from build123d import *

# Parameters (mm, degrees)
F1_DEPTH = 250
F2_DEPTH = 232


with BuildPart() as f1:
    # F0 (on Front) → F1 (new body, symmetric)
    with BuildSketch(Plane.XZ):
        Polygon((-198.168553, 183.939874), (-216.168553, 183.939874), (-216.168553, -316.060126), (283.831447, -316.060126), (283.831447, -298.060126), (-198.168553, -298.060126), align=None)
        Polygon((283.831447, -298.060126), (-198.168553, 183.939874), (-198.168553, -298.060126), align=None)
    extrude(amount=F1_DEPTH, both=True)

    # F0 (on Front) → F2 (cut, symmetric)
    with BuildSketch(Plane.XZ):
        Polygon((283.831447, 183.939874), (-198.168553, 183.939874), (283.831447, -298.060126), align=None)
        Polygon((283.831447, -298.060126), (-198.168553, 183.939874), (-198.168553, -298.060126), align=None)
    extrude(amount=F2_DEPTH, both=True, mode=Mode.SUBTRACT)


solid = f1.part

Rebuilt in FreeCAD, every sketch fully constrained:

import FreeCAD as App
import Part
import Sketcher


def add_polygon(sketch, points):
    """Adds a closed chain of lines whose ends are joined by coincident constraints."""
    first, n = sketch.GeometryCount, len(points)
    for a, b in zip(points, points[1:] + points[:1]):
        sketch.addGeometry(Part.LineSegment(App.Vector(*a, 0), App.Vector(*b, 0)), False)
    for i in range(n):
        sketch.addConstraint(Sketcher.Constraint("Coincident", first + i, 2, first + (i + 1) % n, 1))

doc = App.newDocument("Part")
body = doc.addObject("PartDesign::Body", "Body")

sketch1 = doc.addObject("Sketcher::SketchObject", "Sketch")
body.addObject(sketch1)
sketch1.AttachmentSupport = (doc.XZ_Plane, [""])
sketch1.MapMode = "FlatFace"
add_polygon(sketch1, [(-198, 184), (-216, 184), (-216, -316), (284, -316), (284, -298)])
sketch1.addConstraint([
    Sketcher.Constraint("Horizontal", 0),
    Sketcher.Constraint("Vertical", 1),
    Sketcher.Constraint("Horizontal", 2),
    Sketcher.Constraint("Vertical", 3),
    Sketcher.Constraint("Equal", 2, 1),
    Sketcher.Constraint("Equal", 0, 3),
    Sketcher.Constraint("DistanceX", 0, 2, 0, 1, 18.0),
    Sketcher.Constraint("DistanceX", 2, 1, 2, 2, 500.0),
    Sketcher.Constraint("DistanceX", 0, 2, -1, 1, 216.168553),
    Sketcher.Constraint("DistanceY", -1, 1, 0, 2, 183.939874),
])
pad1 = doc.addObject("PartDesign::Pad", "Pad")
body.addObject(pad1)
pad1.Profile = sketch1
pad1.Length = 500
pad1.Midplane = True

sketch2 = doc.addObject("Sketcher::SketchObject", "Sketch001")
body.addObject(sketch2)
sketch2.AttachmentSupport = (doc.XZ_Plane, [""])
sketch2.MapMode = "FlatFace"
add_polygon(sketch2, [(284, 184), (-198, 184), (-198, -298), (284, -298)])
sketch2.addConstraint([
    Sketcher.Constraint("Horizontal", 0),
    Sketcher.Constraint("Vertical", 1),
    Sketcher.Constraint("Horizontal", 2),
    Sketcher.Constraint("Vertical", 3),
    Sketcher.Constraint("Equal", 2, 1),
    Sketcher.Constraint("DistanceX", 0, 2, 0, 1, 482.0),
    Sketcher.Constraint("DistanceX", 0, 2, -1, 1, 198.168553),
    Sketcher.Constraint("DistanceY", -1, 1, 0, 2, 183.939874),
])
pocket1 = doc.addObject("PartDesign::Pocket", "Pocket")
body.addObject(pocket1)
pocket1.Profile = sketch2
pocket1.Length = 464
pocket1.Midplane = True

doc.recompute()
